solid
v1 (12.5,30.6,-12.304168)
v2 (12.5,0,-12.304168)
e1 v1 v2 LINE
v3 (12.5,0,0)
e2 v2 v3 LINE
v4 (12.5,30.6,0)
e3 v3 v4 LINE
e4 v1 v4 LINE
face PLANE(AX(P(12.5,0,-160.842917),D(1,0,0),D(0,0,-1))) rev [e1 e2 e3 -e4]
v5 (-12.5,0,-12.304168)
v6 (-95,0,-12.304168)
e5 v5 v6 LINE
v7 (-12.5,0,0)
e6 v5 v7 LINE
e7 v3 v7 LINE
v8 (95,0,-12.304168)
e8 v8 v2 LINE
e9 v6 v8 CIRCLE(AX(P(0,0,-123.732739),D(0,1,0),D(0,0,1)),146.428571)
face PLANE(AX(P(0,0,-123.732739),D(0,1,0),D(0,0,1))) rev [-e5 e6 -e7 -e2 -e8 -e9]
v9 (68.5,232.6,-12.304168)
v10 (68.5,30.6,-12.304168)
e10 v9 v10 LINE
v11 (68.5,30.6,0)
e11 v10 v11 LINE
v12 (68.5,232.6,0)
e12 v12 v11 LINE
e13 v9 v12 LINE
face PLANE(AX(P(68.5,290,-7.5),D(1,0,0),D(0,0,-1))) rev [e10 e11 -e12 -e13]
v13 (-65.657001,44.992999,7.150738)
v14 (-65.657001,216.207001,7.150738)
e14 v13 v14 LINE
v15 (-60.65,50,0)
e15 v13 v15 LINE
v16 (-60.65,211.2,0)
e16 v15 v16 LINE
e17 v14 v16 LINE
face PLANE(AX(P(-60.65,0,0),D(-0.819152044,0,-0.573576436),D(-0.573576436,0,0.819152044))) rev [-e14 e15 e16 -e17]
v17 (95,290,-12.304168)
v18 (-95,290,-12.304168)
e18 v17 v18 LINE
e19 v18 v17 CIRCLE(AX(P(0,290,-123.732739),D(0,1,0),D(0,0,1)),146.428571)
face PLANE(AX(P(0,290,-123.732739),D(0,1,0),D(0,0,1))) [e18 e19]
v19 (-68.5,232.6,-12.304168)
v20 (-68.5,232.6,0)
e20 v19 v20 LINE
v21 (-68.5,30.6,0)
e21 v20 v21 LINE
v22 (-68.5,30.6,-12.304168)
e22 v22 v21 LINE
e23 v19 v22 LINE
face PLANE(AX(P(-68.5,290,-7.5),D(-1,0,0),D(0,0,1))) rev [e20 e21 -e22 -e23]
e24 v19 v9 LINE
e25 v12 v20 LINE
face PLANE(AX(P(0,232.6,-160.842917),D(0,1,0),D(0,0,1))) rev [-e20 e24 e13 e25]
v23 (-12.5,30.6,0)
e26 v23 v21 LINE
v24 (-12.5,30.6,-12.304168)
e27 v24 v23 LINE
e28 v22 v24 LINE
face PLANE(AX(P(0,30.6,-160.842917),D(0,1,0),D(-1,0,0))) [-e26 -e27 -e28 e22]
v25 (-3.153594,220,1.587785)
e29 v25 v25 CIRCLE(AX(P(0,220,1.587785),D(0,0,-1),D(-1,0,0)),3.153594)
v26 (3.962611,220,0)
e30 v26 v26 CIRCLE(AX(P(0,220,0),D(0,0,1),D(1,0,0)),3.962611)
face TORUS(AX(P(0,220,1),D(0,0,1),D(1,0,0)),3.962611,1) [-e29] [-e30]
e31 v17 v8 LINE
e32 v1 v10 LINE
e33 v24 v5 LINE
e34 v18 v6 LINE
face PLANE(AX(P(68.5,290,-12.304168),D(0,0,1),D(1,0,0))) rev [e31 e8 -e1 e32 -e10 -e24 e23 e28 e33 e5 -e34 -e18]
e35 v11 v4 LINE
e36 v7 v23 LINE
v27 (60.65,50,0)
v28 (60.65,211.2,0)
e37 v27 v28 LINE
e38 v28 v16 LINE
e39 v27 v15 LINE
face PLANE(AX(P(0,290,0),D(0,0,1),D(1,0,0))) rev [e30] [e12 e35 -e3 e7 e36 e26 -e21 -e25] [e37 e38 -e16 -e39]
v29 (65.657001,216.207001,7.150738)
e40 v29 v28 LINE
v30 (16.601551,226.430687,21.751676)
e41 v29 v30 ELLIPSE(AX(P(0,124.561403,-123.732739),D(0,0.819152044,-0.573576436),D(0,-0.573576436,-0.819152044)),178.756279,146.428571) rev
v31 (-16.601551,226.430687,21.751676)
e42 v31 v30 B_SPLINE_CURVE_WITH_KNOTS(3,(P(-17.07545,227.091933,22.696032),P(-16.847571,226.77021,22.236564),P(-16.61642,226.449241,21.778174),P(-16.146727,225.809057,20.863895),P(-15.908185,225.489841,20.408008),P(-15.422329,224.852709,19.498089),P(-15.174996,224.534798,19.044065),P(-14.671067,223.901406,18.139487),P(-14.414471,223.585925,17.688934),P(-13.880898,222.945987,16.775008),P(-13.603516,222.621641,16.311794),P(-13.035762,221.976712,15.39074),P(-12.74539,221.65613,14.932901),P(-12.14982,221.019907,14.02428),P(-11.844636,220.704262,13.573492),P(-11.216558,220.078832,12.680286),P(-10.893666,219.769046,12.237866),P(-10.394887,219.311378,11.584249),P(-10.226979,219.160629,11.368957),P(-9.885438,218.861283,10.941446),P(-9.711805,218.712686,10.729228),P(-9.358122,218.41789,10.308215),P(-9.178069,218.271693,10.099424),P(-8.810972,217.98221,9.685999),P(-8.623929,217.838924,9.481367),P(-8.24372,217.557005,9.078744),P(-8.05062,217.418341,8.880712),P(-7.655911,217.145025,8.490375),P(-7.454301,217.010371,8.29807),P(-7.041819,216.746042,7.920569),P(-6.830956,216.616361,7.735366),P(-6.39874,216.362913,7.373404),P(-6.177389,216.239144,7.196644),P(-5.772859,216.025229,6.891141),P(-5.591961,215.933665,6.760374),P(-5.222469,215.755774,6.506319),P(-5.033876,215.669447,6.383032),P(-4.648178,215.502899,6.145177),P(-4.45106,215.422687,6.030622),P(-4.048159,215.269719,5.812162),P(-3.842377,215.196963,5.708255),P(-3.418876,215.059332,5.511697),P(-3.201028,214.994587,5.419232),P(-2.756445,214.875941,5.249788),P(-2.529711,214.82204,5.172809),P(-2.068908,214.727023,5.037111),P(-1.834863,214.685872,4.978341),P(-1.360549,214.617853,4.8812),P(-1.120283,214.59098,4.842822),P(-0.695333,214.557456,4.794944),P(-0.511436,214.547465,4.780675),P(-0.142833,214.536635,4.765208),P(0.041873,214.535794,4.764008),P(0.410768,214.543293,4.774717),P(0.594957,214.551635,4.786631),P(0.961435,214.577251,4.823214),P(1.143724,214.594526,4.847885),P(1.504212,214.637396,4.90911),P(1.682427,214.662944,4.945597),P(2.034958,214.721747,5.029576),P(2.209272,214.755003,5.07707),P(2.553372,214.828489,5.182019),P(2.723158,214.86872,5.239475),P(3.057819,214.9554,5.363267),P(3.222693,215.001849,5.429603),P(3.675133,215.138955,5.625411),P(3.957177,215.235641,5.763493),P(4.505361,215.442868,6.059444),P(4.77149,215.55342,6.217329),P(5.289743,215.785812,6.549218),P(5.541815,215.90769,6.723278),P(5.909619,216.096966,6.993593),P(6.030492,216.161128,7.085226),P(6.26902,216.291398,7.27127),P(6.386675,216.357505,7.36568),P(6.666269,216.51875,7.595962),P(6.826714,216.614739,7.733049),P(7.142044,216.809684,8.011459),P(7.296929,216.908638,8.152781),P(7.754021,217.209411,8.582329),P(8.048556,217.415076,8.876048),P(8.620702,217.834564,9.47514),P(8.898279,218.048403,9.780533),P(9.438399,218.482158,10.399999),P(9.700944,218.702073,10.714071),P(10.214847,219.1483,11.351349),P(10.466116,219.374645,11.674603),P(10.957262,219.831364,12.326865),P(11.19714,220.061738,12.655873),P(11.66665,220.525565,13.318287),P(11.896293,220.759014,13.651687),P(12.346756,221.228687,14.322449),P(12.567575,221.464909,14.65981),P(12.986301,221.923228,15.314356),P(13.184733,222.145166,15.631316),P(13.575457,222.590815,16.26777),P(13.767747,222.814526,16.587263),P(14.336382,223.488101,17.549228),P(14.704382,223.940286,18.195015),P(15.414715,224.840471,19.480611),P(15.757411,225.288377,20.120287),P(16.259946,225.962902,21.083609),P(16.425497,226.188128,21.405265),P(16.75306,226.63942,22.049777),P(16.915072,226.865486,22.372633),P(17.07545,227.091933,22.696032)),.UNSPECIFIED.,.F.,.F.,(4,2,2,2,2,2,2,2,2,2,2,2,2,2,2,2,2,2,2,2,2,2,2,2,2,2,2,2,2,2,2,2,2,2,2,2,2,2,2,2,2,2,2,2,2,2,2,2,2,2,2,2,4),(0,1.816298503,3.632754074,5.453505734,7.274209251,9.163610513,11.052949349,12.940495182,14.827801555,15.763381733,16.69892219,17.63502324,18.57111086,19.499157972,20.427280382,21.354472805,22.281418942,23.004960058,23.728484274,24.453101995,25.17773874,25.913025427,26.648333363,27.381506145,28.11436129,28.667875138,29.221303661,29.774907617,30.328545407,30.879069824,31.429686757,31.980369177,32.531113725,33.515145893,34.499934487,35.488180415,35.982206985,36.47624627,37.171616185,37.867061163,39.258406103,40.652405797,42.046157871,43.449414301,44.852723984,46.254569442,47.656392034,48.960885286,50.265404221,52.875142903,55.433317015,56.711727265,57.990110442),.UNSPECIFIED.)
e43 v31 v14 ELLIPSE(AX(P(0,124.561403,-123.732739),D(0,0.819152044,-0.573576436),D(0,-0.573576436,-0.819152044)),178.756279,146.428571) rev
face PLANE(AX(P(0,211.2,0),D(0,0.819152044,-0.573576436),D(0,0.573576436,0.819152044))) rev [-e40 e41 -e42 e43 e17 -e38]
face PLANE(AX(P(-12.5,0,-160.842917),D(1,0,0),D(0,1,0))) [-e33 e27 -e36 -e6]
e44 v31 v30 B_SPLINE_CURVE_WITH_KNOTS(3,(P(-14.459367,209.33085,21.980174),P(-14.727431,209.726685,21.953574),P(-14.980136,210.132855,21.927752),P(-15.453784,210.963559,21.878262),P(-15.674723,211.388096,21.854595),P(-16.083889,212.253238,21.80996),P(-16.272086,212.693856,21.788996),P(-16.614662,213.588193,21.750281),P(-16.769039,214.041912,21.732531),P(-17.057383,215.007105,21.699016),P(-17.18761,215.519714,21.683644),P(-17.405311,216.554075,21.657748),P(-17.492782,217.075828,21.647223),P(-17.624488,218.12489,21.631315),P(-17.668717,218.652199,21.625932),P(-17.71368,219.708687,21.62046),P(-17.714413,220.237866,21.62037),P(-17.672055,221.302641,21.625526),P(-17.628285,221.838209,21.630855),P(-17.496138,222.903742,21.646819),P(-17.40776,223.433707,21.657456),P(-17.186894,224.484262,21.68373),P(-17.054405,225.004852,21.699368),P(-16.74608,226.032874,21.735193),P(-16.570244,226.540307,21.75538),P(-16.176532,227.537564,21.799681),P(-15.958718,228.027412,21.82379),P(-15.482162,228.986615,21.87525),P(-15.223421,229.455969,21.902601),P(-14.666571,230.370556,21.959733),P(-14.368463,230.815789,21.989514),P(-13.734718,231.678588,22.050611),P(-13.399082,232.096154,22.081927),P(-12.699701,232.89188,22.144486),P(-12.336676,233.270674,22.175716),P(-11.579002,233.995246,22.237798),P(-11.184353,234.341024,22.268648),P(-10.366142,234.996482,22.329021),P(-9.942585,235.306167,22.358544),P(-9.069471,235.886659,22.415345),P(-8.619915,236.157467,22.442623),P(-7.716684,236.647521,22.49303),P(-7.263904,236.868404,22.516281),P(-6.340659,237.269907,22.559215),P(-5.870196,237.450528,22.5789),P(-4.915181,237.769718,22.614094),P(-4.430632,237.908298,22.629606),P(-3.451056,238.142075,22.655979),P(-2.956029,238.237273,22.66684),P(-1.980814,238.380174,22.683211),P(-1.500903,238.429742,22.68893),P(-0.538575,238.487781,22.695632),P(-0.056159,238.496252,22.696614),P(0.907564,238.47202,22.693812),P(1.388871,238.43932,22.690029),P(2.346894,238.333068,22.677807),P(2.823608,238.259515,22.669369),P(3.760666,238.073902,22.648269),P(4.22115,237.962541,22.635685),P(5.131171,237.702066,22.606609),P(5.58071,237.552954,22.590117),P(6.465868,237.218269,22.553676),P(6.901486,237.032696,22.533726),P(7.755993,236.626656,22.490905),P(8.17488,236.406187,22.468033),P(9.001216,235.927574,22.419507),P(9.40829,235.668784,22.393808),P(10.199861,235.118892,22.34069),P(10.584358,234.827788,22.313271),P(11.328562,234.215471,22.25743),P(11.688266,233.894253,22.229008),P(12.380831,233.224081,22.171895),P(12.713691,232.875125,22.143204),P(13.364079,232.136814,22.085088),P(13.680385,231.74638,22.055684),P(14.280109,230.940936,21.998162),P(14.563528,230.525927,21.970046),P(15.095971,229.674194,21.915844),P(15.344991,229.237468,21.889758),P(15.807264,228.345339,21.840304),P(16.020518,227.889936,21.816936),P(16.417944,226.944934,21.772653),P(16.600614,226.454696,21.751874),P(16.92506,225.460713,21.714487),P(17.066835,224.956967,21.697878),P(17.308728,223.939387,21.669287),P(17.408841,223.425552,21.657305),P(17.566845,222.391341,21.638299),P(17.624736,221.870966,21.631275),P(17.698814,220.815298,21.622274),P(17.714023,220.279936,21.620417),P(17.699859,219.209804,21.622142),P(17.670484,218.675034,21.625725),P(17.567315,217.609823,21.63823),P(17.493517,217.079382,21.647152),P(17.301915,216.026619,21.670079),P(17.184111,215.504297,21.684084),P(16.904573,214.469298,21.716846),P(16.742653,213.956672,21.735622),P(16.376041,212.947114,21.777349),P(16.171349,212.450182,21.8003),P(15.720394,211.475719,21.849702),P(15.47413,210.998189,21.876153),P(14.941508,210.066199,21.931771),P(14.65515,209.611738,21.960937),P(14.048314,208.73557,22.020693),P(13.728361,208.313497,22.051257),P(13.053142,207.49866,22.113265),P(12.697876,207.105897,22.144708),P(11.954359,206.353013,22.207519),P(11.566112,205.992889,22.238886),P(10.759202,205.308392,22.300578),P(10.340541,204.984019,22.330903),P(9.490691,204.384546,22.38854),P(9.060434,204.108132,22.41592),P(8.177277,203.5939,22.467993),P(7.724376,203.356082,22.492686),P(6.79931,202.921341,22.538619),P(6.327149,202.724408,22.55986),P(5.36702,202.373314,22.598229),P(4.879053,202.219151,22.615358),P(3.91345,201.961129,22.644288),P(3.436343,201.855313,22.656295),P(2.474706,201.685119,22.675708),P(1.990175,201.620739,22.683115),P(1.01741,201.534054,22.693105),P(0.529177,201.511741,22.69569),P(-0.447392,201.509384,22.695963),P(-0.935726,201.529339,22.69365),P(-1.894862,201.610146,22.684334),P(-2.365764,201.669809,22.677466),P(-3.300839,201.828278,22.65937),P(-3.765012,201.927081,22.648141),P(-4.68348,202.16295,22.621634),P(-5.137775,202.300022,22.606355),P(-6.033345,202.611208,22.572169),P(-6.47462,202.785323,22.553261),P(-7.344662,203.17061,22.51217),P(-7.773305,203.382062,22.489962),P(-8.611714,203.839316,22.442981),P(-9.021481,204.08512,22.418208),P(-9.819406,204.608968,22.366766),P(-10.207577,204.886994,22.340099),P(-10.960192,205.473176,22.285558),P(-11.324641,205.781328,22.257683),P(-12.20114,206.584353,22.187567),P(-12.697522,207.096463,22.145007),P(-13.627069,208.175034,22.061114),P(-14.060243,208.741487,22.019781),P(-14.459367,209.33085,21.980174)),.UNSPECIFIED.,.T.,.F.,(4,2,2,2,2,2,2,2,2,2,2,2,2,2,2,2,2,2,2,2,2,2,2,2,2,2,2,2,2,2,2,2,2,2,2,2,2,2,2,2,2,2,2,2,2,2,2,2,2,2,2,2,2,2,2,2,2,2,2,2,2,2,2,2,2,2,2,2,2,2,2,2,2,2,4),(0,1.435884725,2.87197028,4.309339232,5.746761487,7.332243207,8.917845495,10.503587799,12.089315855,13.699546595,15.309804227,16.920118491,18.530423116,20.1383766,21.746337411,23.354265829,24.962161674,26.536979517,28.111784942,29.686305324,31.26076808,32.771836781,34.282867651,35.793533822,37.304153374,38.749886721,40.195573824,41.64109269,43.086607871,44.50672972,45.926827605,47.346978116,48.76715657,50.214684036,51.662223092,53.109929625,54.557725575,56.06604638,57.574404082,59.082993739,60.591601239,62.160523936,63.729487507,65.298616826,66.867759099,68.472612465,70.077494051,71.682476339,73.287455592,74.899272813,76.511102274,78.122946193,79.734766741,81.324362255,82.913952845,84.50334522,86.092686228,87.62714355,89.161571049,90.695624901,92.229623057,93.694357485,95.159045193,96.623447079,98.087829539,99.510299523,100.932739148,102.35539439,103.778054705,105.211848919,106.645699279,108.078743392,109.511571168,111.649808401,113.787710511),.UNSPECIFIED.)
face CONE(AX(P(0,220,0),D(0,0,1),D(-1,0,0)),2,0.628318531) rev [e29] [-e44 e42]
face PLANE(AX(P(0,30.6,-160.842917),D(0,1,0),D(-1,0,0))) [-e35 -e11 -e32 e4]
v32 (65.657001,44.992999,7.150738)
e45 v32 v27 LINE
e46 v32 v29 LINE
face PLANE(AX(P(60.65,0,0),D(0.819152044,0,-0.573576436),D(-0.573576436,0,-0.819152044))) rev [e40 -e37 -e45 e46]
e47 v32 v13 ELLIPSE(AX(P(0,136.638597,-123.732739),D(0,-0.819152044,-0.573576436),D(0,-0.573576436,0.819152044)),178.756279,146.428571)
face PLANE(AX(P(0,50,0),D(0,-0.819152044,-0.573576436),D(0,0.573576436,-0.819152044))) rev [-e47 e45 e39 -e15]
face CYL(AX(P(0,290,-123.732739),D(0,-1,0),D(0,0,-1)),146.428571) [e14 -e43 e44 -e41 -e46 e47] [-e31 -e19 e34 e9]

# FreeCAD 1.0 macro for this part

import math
import FreeCAD as App
import Part
import Sketcher


def edges_at(feature, points):
    """Names of the edges that pass closest to the given points."""
    edges = feature.Shape.Edges
    near = lambda p: min(range(len(edges)), key=lambda i: edges[i].distToShape(Part.Vertex(*p))[0])
    return sorted({f"Edge{near(p) + 1}" for p in points})


def faces_at(feature, points):
    """Names of the faces that lie closest to the given points."""
    faces = feature.Shape.Faces
    near = lambda p: min(range(len(faces)), key=lambda i: faces[i].distToShape(Part.Vertex(*p))[0])
    return sorted({f"Face{near(p) + 1}" for p in points})

doc = App.newDocument("Part")
body = doc.addObject("PartDesign::Body", "Body")

sketch1 = doc.addObject("Sketcher::SketchObject", "Sketch")
body.addObject(sketch1)
sketch1.AttachmentSupport = (doc.XZ_Plane, [""])
sketch1.MapMode = "FlatFace"
sketch1.addGeometry([
    Part.LineSegment(App.Vector(-68, 0, 0), App.Vector(-68, -12, 0)),
    Part.LineSegment(App.Vector(-68, -12, 0), App.Vector(-95, -12, 0)),
    Part.ArcOfCircle(Part.Circle(App.Vector(0, -124, 0), App.Vector(0, 0, 1), 146), math.radians(50), math.radians(130)),
    Part.LineSegment(App.Vector(95, -12, 0), App.Vector(68, -12, 0)),
    Part.LineSegment(App.Vector(68, -12, 0), App.Vector(68, 0, 0)),
    Part.LineSegment(App.Vector(68, 0, 0), App.Vector(-68, 0, 0)),
], False)
sketch1.addConstraint([
    Sketcher.Constraint("Coincident", 0, 2, 1, 1),
    Sketcher.Constraint("Coincident", 1, 2, 2, 2),
    Sketcher.Constraint("Coincident", 2, 1, 3, 1),
    Sketcher.Constraint("Coincident", 3, 2, 4, 1),
    Sketcher.Constraint("Coincident", 4, 2, 5, 1),
    Sketcher.Constraint("Coincident", 5, 2, 0, 1),
    Sketcher.Constraint("Vertical", 0),
    Sketcher.Constraint("Horizontal", 1),
    Sketcher.Constraint("Horizontal", 3),
    Sketcher.Constraint("Vertical", 4),
    Sketcher.Constraint("Horizontal", 5),
    Sketcher.Constraint("Symmetric", 4, 2, 5, 2, -1, 1),
    Sketcher.Constraint("Symmetric", 1, 2, 2, 1, -2),
    Sketcher.Constraint("DistanceX", 5, 2, 5, 1, 137.0),
    Sketcher.Constraint("DistanceX", 1, 2, 1, 1, 26.5),
    Sketcher.Constraint("Radius", 2, 146.428571),
    Sketcher.Constraint("DistanceY", 0, 2, 0, 1, 12.304168),
])
pad1 = doc.addObject("PartDesign::Pad", "Pad")
body.addObject(pad1)
pad1.Profile = sketch1
pad1.Length = 290
pad1.Reversed = True

sketch2 = doc.addObject("Sketcher::SketchObject", "Sketch001")
body.addObject(sketch2)
sketch2.AttachmentSupport = (doc.XY_Plane, [""])
sketch2.MapMode = "FlatFace"
sketch2.addGeometry([
    Part.LineSegment(App.Vector(68, 290, 0), App.Vector(68, 233, 0)),
    Part.LineSegment(App.Vector(68, 233, 0), App.Vector(-68, 233, 0)),
    Part.LineSegment(App.Vector(-68, 233, 0), App.Vector(-68, 290, 0)),
    Part.LineSegment(App.Vector(-68, 290, 0), App.Vector(68, 290, 0)),
    Part.LineSegment(App.Vector(68, 31, 0), App.Vector(68, 0, 0)),
    Part.LineSegment(App.Vector(68, 0, 0), App.Vector(12, 0, 0)),
    Part.LineSegment(App.Vector(12, 0, 0), App.Vector(12, 31, 0)),
    Part.LineSegment(App.Vector(12, 31, 0), App.Vector(68, 31, 0)),
    Part.LineSegment(App.Vector(-12, 31, 0), App.Vector(-12, 0, 0)),
    Part.LineSegment(App.Vector(-12, 0, 0), App.Vector(-68, 0, 0)),
    Part.LineSegment(App.Vector(-68, 0, 0), App.Vector(-68, 31, 0)),
    Part.LineSegment(App.Vector(-68, 31, 0), App.Vector(-12, 31, 0)),
], False)
sketch2.addConstraint([
    Sketcher.Constraint("Coincident", 0, 2, 1, 1),
    Sketcher.Constraint("Coincident", 1, 2, 2, 1),
    Sketcher.Constraint("Coincident", 2, 2, 3, 1),
    Sketcher.Constraint("Coincident", 3, 2, 0, 1),
    Sketcher.Constraint("Coincident", 4, 2, 5, 1),
    Sketcher.Constraint("Coincident", 5, 2, 6, 1),
    Sketcher.Constraint("Coincident", 6, 2, 7, 1),
    Sketcher.Constraint("Coincident", 7, 2, 4, 1),
    Sketcher.Constraint("Coincident", 8, 2, 9, 1),
    Sketcher.Constraint("Coincident", 9, 2, 10, 1),
    Sketcher.Constraint("Coincident", 10, 2, 11, 1),
    Sketcher.Constraint("Coincident", 11, 2, 8, 1),
    Sketcher.Constraint("Vertical", 0),
    Sketcher.Constraint("Horizontal", 1),
    Sketcher.Constraint("Vertical", 2),
    Sketcher.Constraint("Horizontal", 3),
    Sketcher.Constraint("Vertical", 4),
    Sketcher.Constraint("Horizontal", 5),
    Sketcher.Constraint("Vertical", 6),
    Sketcher.Constraint("Horizontal", 7),
    Sketcher.Constraint("Vertical", 8),
    Sketcher.Constraint("Horizontal", 9),
    Sketcher.Constraint("Vertical", 10),
    Sketcher.Constraint("Horizontal", 11),
    Sketcher.Constraint("Symmetric", 5, 2, 8, 2, -1, 1),
    Sketcher.Constraint("Symmetric", 4, 2, 9, 2, -2),
    Sketcher.Constraint("Horizontal", 7, 2, 10, 2),
    Sketcher.Constraint("Vertical", 3, 2, 4, 2),
    Sketcher.Constraint("Vertical", 2, 2, 9, 2),
    Sketcher.Constraint("DistanceX", 1, 2, 1, 1, 137.0),
    Sketcher.Constraint("DistanceX", 5, 2, 5, 1, 56.0),
    Sketcher.Constraint("DistanceY", 0, 2, 0, 1, 57.4),
    Sketcher.Constraint("DistanceY", 4, 2, 4, 1, 30.6),
    Sketcher.Constraint("DistanceY", -1, 1, 2, 2, 290.0),
])
pad2 = doc.addObject("PartDesign::Pad", "Pad001")
body.addObject(pad2)
pad2.Profile = sketch2
pad2.Length = 12.304168
pad2.Reversed = True

sketch3 = doc.addObject("Sketcher::SketchObject", "Sketch002")
body.addObject(sketch3)
sketch3.AttachmentSupport = (doc.XY_Plane, [""])
sketch3.MapMode = "FlatFace"
sketch3.addGeometry([
    Part.LineSegment(App.Vector(61, 211, 0), App.Vector(61, 50, 0)),
    Part.LineSegment(App.Vector(61, 50, 0), App.Vector(-61, 50, 0)),
    Part.LineSegment(App.Vector(-61, 50, 0), App.Vector(-61, 211, 0)),
    Part.LineSegment(App.Vector(-61, 211, 0), App.Vector(61, 211, 0)),
], False)
sketch3.addConstraint([
    Sketcher.Constraint("Coincident", 0, 2, 1, 1),
    Sketcher.Constraint("Coincident", 1, 2, 2, 1),
    Sketcher.Constraint("Coincident", 2, 2, 3, 1),
    Sketcher.Constraint("Coincident", 3, 2, 0, 1),
    Sketcher.Constraint("Vertical", 0),
    Sketcher.Constraint("Horizontal", 1),
    Sketcher.Constraint("Vertical", 2),
    Sketcher.Constraint("Horizontal", 3),
    Sketcher.Constraint("DistanceX", 1, 2, 1, 1, 121.3),
    Sketcher.Constraint("DistanceY", 0, 2, 0, 1, 161.2),
    Sketcher.Constraint("DistanceY", -1, 1, 0, 2, 50.0),
    Sketcher.Constraint("DistanceX", -1, 1, 0, 2, 60.65),
])
pocket1 = doc.addObject("PartDesign::Pocket", "Pocket")
body.addObject(pocket1)
pocket1.Profile = sketch3
pocket1.Length = 307.006701
pocket1.Reversed = True
pocket1.TaperAngle = 35
body2 = doc.addObject("PartDesign::Body", "Body001")

sketch4 = doc.addObject("Sketcher::SketchObject", "Sketch003")
body2.addObject(sketch4)
sketch4.AttachmentSupport = (doc.getObject("XY_Plane001"), [""])
sketch4.MapMode = "FlatFace"
sketch4.addGeometry(Part.Circle(App.Vector(0, 220, 0), App.Vector(0, 0, 1), 2), False)
sketch4.addConstraint([
    Sketcher.Constraint("PointOnObject", 0, 3, -2),
    Sketcher.Constraint("Diameter", 0, 4.0),
    Sketcher.Constraint("DistanceY", -1, 1, 0, 3, 220.0),
])
pad3 = doc.addObject("PartDesign::Pad", "Pad002")
body2.addObject(pad3)
pad3.Profile = sketch4
pad3.Length = 307.006701
doc.recompute()

draft = doc.addObject("PartDesign::Draft", "Draft")
body2.addObject(draft)
draft.Base = (pad3, faces_at(pad3, [(2, 220, 153.503)]))
draft.NeutralPlane = (doc.getObject("XY_Plane001"), [""])
draft.Angle = 36
draft.Reversed = True
doc.recompute()

boolean = doc.addObject("PartDesign::Boolean", "Boolean")
body.addObject(boolean)
boolean.Type = "Cut"
boolean.addObjects([body2])
doc.recompute()

fillet = doc.addObject("PartDesign::Fillet", "Fillet")
body.addObject(fillet)
fillet.Base = (boolean, edges_at(boolean, [(2, 220, 0)]))
fillet.Radius = 1

doc.recompute()
